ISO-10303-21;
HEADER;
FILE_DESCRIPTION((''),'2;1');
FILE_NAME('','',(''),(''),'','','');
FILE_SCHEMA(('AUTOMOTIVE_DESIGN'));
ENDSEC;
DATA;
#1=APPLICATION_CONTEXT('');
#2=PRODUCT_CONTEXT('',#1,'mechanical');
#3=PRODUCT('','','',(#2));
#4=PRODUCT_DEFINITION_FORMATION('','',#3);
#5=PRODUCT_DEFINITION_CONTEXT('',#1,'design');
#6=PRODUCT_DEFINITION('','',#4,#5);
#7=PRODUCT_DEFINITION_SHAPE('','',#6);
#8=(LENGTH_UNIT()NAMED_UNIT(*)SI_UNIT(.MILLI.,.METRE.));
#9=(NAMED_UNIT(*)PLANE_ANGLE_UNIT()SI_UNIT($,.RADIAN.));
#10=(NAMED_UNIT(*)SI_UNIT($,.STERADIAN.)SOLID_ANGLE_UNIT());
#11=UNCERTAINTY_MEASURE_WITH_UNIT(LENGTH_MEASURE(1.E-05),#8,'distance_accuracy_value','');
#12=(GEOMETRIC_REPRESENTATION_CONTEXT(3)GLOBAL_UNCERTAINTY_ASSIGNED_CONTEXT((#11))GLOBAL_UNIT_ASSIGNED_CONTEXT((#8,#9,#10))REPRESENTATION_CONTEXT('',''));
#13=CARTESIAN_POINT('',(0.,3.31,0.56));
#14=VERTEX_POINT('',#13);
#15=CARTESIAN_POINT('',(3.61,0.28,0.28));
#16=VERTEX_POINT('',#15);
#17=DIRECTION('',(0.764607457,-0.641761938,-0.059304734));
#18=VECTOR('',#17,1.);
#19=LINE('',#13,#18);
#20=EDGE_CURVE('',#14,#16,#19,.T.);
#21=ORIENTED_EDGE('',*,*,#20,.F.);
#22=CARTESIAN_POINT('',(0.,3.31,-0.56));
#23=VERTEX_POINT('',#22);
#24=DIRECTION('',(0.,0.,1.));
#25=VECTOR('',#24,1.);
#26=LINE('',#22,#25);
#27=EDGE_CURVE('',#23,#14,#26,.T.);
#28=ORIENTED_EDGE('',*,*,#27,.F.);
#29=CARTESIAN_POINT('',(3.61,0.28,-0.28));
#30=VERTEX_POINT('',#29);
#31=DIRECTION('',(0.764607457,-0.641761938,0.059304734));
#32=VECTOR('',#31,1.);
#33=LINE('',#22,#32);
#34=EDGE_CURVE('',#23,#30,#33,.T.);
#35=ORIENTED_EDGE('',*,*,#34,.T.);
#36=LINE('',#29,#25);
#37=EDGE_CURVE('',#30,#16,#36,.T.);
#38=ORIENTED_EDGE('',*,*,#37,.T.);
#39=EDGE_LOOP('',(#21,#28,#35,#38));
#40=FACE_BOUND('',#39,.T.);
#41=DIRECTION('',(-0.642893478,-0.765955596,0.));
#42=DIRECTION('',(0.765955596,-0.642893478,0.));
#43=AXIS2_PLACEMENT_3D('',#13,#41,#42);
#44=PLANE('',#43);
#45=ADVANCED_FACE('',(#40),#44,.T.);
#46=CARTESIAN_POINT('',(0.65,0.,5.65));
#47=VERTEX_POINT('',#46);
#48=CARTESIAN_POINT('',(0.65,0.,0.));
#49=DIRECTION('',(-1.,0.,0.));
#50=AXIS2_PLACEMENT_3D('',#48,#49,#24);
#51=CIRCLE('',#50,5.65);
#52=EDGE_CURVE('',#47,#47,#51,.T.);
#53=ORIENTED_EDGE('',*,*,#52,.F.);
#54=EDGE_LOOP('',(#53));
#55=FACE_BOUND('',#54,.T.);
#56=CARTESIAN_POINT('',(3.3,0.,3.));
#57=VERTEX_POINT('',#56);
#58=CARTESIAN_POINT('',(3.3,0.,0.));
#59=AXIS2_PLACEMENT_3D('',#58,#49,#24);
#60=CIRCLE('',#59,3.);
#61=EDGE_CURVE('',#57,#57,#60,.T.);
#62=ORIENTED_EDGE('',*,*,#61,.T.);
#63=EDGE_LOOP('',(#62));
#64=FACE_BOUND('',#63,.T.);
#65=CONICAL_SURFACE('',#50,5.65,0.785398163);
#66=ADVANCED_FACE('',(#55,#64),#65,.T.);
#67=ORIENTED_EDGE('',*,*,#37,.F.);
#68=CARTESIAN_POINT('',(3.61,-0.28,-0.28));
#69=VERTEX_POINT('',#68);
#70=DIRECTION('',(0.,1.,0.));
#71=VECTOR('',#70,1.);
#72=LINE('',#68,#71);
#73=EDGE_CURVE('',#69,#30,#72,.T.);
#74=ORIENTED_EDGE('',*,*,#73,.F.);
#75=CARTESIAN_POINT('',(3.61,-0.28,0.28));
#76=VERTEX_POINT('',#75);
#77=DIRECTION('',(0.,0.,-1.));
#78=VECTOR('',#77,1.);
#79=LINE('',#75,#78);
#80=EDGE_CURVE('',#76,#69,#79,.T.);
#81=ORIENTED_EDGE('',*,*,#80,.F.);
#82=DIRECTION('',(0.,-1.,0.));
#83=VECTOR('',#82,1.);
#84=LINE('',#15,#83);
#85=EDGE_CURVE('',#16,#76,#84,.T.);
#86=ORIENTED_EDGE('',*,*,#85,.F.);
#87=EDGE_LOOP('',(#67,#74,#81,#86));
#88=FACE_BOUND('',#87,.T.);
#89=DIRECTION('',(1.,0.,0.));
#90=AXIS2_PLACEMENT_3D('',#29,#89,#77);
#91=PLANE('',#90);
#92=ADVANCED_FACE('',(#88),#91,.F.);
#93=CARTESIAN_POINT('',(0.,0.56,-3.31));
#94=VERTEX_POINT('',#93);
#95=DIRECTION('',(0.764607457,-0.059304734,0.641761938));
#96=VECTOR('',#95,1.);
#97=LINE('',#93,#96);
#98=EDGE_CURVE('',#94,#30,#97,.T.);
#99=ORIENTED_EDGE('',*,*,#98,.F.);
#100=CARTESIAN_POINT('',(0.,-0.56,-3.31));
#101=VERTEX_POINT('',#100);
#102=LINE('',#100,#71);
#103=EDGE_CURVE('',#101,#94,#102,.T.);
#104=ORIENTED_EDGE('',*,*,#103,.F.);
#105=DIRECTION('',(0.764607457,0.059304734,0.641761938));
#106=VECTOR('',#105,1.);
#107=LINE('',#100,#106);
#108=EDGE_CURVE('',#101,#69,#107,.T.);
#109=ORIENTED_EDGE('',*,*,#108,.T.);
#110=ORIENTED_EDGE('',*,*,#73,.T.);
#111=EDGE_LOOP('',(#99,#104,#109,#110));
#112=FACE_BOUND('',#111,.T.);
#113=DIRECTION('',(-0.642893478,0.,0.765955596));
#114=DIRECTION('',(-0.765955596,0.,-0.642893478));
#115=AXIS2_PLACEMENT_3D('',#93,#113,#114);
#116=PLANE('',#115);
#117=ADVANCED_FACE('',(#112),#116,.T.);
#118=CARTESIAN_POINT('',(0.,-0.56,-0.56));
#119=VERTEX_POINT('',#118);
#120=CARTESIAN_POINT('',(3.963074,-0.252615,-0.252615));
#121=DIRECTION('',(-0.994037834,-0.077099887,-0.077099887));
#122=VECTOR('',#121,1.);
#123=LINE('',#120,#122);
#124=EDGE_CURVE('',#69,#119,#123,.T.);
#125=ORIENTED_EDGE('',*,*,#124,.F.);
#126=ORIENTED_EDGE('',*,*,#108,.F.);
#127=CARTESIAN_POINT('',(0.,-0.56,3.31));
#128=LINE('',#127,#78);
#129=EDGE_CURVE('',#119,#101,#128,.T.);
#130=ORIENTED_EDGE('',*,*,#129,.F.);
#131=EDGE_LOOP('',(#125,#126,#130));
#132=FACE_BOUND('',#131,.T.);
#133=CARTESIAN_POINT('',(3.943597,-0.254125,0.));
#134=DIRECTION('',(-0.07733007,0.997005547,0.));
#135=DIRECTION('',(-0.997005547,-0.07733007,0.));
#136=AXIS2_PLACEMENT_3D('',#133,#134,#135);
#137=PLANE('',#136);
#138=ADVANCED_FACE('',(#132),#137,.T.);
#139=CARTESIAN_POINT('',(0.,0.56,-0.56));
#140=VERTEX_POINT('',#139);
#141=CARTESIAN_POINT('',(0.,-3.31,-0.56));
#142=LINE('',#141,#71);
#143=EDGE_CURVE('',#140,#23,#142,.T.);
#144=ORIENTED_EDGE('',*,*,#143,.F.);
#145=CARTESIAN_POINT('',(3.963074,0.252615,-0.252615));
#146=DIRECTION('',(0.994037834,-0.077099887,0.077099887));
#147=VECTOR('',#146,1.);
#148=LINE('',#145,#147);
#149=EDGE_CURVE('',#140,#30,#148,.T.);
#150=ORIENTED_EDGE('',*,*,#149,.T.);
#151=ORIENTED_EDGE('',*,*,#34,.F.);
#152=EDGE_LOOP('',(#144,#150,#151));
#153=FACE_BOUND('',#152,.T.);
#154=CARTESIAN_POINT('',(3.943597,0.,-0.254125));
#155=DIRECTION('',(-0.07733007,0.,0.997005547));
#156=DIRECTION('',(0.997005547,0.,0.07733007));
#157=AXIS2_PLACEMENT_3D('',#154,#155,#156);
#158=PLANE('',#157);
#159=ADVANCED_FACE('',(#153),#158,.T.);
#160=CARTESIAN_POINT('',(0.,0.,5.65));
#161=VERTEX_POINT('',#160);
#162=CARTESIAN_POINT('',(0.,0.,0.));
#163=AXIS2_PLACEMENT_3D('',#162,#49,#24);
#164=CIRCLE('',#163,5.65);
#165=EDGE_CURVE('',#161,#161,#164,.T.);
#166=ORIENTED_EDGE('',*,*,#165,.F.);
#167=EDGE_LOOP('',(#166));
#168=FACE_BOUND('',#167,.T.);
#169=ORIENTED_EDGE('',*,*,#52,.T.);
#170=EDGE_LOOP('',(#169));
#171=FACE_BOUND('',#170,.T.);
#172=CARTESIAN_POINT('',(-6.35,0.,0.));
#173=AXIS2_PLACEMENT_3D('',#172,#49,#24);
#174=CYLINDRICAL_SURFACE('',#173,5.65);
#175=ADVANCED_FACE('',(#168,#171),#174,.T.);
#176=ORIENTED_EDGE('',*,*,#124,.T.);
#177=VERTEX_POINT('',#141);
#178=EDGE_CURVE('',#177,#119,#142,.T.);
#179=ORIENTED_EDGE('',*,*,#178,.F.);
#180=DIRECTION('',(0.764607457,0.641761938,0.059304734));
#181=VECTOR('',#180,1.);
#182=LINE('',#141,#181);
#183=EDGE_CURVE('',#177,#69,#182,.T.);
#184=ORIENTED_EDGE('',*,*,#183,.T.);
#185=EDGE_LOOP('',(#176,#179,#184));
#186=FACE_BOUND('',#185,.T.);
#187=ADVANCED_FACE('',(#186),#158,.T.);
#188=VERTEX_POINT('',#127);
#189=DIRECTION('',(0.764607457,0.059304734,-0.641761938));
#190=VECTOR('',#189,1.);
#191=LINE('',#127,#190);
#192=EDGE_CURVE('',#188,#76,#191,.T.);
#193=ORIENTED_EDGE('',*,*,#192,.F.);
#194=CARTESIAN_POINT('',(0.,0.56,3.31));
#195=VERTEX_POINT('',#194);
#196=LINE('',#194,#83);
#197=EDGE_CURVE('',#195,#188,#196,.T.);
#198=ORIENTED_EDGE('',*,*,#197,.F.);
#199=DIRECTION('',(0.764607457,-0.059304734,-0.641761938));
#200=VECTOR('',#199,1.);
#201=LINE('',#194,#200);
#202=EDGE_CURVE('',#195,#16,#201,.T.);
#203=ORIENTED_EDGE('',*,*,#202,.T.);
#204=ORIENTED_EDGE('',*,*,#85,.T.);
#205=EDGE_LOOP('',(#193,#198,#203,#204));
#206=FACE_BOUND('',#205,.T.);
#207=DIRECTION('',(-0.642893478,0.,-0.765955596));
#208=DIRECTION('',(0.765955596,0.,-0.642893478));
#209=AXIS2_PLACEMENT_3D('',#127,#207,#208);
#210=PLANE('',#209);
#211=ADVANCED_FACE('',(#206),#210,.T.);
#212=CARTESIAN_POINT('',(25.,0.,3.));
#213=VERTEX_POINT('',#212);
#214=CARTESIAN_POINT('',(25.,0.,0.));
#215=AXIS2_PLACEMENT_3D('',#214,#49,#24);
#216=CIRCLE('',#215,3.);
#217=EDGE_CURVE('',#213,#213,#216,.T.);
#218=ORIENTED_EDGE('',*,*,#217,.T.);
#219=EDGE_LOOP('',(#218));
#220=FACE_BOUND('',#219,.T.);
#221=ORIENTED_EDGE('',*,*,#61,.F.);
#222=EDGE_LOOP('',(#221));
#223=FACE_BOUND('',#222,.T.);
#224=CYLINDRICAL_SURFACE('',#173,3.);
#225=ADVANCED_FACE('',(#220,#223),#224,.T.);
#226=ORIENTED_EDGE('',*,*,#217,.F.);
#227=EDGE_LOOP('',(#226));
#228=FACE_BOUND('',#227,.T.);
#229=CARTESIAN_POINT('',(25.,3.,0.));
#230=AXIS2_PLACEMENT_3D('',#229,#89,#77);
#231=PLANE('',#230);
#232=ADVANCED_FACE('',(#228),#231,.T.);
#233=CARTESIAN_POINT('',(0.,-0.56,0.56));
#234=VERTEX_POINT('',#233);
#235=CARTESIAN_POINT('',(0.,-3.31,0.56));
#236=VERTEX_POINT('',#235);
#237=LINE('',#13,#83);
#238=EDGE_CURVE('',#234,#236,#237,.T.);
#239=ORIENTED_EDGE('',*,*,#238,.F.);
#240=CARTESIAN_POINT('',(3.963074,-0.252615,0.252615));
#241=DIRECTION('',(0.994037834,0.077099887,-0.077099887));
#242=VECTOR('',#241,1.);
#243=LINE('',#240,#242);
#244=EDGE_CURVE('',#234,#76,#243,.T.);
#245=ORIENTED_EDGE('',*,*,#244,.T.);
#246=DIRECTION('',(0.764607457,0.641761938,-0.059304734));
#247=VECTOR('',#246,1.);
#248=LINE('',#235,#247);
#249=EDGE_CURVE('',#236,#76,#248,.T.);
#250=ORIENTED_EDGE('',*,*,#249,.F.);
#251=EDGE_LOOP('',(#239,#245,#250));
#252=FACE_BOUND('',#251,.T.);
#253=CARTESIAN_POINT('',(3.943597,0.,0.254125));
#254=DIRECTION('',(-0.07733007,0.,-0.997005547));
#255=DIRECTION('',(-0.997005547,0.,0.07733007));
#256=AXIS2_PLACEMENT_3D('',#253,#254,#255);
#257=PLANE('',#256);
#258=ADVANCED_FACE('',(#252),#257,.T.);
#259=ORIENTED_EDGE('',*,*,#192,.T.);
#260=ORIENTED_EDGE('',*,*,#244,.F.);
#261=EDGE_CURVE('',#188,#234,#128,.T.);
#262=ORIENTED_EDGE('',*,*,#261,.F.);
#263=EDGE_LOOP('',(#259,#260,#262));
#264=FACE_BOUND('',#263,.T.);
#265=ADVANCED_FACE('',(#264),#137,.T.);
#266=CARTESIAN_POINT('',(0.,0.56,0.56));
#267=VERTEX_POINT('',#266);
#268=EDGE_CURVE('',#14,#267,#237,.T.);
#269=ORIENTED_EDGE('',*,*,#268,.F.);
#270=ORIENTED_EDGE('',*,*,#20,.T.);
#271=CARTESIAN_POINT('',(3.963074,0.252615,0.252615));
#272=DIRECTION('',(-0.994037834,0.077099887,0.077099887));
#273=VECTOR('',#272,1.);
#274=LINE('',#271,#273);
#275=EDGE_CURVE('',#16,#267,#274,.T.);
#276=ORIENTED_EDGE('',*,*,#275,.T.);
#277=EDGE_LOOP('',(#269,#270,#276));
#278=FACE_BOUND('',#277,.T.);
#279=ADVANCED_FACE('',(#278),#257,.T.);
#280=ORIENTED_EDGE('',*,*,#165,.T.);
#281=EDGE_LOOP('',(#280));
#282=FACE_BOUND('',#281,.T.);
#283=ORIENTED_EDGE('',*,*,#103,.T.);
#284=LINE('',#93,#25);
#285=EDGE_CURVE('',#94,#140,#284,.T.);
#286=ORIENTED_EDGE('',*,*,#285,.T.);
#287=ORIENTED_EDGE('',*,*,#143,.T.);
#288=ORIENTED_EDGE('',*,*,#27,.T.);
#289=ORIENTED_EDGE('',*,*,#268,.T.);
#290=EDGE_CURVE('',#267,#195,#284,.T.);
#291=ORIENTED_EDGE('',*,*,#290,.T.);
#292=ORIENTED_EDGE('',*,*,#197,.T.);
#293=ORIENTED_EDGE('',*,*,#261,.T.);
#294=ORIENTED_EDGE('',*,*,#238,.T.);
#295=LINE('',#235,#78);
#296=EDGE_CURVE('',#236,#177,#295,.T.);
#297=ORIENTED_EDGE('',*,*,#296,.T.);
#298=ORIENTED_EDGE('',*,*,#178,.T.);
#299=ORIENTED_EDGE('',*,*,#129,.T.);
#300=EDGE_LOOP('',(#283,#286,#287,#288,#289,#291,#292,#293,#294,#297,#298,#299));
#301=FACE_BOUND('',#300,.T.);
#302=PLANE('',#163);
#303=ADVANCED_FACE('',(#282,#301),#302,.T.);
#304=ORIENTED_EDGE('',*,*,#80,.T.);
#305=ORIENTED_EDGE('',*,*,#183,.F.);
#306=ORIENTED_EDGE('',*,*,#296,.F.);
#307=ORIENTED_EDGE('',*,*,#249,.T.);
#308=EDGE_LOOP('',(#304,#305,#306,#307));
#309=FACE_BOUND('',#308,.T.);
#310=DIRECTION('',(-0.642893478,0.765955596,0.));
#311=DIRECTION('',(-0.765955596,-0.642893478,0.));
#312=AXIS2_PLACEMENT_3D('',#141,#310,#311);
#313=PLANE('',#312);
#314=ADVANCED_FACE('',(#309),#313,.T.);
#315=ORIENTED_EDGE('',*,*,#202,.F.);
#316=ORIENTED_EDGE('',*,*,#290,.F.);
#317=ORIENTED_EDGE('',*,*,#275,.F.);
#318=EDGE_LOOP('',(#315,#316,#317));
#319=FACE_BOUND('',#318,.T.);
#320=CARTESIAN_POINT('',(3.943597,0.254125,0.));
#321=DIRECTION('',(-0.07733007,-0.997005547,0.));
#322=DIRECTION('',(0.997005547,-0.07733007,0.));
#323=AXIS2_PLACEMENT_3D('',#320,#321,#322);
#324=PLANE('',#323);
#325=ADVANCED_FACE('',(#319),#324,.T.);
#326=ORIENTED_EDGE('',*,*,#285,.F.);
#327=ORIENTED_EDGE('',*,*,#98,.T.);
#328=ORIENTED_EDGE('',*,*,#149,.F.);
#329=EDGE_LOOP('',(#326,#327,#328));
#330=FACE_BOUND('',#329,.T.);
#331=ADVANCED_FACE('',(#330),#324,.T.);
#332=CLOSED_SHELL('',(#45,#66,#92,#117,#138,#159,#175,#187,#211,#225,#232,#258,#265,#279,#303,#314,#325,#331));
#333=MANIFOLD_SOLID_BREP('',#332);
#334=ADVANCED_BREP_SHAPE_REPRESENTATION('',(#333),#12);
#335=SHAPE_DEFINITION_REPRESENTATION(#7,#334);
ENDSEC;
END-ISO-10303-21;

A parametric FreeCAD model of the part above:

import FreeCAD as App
import Part
import Sketcher

V = App.Vector
Q = App.Units.Quantity


def add_polygon(sketch, points):
    """Adds a closed chain of lines whose ends are joined by coincident constraints."""
    first, n = sketch.GeometryCount, len(points)
    for a, b in zip(points, points[1:] + points[:1]):
        sketch.addGeometry(Part.LineSegment(App.Vector(*a, 0), App.Vector(*b, 0)), False)
    for i in range(n):
        sketch.addConstraint(Sketcher.Constraint("Coincident", first + i, 2, first + (i + 1) % n, 1))

doc = App.newDocument("Part")
params = doc.addObject("Spreadsheet::Sheet", "Params")
for row, (alias, value) in enumerate([
    ("sketch1_width", "25 mm"),
    ("sketch1_height", "3 mm"),
    ("sketch1_width2", "21.7 mm"),
    ("sketch1_width3", "0.65 mm"),
    ("revolution_angle", "360 deg"),
    ("sketch2_width", "6.62 mm"),
    ("sketch2_height", "1.12 mm"),
    ("sketch3_width", "0.56 mm"),
], start=1):
    params.set(f"A{row}", alias)
    params.set(f"B{row}", "=" + value)
    params.setAlias(f"B{row}", alias)

body = doc.addObject("PartDesign::Body", "Body")

# Sketch on XY plane
sketch1 = doc.addObject("Sketcher::SketchObject", "Sketch")
body.addObject(sketch1)
sketch1.AttachmentSupport = (doc.XY_Plane, [""])
sketch1.MapMode = "FlatFace"
add_polygon(sketch1, [(0, 5.65), (0, 0), (25, 0), (25, 3), (3.3, 3), (0.65, 5.65)])  # lines 0-5
sketch1.addConstraint([
    Sketcher.Constraint("Vertical", 0),
    Sketcher.Constraint("Horizontal", 1),
    Sketcher.Constraint("Vertical", 2),
    Sketcher.Constraint("Horizontal", 3),
    Sketcher.Constraint("Horizontal", 5),
    Sketcher.Constraint("Coincident", 0, 2, -1, 1),
    Sketcher.Constraint("DistanceX", 1, 1, 1, 2, 25.0),
    Sketcher.Constraint("DistanceY", 2, 1, 2, 2, 3.0),
    Sketcher.Constraint("Angle", 4, Q("135 deg")),
    Sketcher.Constraint("DistanceX", 3, 2, 3, 1, 21.7),
    Sketcher.Constraint("DistanceX", 5, 2, 5, 1, 0.65),
])
sketch1.setExpression("Constraints[12]", "Params.sketch1_width")
sketch1.setExpression("Constraints[13]", "Params.sketch1_height")
sketch1.setExpression("Constraints[15]", "Params.sketch1_width2")
sketch1.setExpression("Constraints[16]", "Params.sketch1_width3")
revolution = doc.addObject("PartDesign::Revolution", "Revolution")
body.addObject(revolution)
revolution.Profile = sketch1
revolution.ReferenceAxis = (sketch1, ["H_Axis"])
revolution.setExpression("Angle", "Params.revolution_angle")

# Sketch on YZ plane
sketch2 = doc.addObject("Sketcher::SketchObject", "Sketch001")
body.addObject(sketch2)
sketch2.AttachmentSupport = (doc.YZ_Plane, [""])
sketch2.MapMode = "FlatFace"
add_polygon(sketch2, [(3.31, -0.56), (-3.31, -0.56), (-3.31, 0.56), (3.31, 0.56)])  # lines 0-3
sketch2.addConstraint([
    Sketcher.Constraint("Horizontal", 0),
    Sketcher.Constraint("Vertical", 1),
    Sketcher.Constraint("Horizontal", 2),
    Sketcher.Constraint("Vertical", 3),
    Sketcher.Constraint("Symmetric", 0, 2, 2, 2, -1, 1),
    Sketcher.Constraint("DistanceX", 0, 2, 0, 1, 6.62),
    Sketcher.Constraint("DistanceY", 1, 1, 1, 2, 1.12),
])
sketch2.setExpression("Constraints[9]", "Params.sketch2_width")
sketch2.setExpression("Constraints[10]", "Params.sketch2_height")

# Sketch on YZ plane
sketch3 = doc.addObject("Sketcher::SketchObject", "Sketch002")
body.addObject(sketch3)
sketch3.AttachmentSupport = (doc.YZ_Plane, [""])
sketch3.MapMode = "FlatFace"
sketch3.AttachmentOffset = App.Placement(V(0, 0, 3.61), App.Rotation())
add_polygon(sketch3, [(0.28, -0.28), (-0.28, -0.28), (-0.28, 0.28), (0.28, 0.28)])  # lines 0-3
sketch3.addConstraint([
    Sketcher.Constraint("Horizontal", 0),
    Sketcher.Constraint("Vertical", 1),
    Sketcher.Constraint("Horizontal", 2),
    Sketcher.Constraint("Vertical", 3),
    Sketcher.Constraint("Symmetric", 0, 2, 2, 2, -1, 1),
    Sketcher.Constraint("Equal", 2, 1),
    Sketcher.Constraint("DistanceX", 0, 2, 0, 1, 0.56),
])
sketch3.setExpression("Constraints[10]", "Params.sketch3_width")

subtractiveloft = doc.addObject("PartDesign::SubtractiveLoft", "SubtractiveLoft")
body.addObject(subtractiveloft)
subtractiveloft.Profile = sketch2
subtractiveloft.Sections = [sketch3]
doc.recompute()

polarpattern = doc.addObject("PartDesign::PolarPattern", "PolarPattern")
body.addObject(polarpattern)
polarpattern.Originals = [subtractiveloft]
polarpattern.Axis = (doc.X_Axis, [""])
polarpattern.Angle = 90
polarpattern.Occurrences = 2
body.Tip = polarpattern

doc.recompute()
